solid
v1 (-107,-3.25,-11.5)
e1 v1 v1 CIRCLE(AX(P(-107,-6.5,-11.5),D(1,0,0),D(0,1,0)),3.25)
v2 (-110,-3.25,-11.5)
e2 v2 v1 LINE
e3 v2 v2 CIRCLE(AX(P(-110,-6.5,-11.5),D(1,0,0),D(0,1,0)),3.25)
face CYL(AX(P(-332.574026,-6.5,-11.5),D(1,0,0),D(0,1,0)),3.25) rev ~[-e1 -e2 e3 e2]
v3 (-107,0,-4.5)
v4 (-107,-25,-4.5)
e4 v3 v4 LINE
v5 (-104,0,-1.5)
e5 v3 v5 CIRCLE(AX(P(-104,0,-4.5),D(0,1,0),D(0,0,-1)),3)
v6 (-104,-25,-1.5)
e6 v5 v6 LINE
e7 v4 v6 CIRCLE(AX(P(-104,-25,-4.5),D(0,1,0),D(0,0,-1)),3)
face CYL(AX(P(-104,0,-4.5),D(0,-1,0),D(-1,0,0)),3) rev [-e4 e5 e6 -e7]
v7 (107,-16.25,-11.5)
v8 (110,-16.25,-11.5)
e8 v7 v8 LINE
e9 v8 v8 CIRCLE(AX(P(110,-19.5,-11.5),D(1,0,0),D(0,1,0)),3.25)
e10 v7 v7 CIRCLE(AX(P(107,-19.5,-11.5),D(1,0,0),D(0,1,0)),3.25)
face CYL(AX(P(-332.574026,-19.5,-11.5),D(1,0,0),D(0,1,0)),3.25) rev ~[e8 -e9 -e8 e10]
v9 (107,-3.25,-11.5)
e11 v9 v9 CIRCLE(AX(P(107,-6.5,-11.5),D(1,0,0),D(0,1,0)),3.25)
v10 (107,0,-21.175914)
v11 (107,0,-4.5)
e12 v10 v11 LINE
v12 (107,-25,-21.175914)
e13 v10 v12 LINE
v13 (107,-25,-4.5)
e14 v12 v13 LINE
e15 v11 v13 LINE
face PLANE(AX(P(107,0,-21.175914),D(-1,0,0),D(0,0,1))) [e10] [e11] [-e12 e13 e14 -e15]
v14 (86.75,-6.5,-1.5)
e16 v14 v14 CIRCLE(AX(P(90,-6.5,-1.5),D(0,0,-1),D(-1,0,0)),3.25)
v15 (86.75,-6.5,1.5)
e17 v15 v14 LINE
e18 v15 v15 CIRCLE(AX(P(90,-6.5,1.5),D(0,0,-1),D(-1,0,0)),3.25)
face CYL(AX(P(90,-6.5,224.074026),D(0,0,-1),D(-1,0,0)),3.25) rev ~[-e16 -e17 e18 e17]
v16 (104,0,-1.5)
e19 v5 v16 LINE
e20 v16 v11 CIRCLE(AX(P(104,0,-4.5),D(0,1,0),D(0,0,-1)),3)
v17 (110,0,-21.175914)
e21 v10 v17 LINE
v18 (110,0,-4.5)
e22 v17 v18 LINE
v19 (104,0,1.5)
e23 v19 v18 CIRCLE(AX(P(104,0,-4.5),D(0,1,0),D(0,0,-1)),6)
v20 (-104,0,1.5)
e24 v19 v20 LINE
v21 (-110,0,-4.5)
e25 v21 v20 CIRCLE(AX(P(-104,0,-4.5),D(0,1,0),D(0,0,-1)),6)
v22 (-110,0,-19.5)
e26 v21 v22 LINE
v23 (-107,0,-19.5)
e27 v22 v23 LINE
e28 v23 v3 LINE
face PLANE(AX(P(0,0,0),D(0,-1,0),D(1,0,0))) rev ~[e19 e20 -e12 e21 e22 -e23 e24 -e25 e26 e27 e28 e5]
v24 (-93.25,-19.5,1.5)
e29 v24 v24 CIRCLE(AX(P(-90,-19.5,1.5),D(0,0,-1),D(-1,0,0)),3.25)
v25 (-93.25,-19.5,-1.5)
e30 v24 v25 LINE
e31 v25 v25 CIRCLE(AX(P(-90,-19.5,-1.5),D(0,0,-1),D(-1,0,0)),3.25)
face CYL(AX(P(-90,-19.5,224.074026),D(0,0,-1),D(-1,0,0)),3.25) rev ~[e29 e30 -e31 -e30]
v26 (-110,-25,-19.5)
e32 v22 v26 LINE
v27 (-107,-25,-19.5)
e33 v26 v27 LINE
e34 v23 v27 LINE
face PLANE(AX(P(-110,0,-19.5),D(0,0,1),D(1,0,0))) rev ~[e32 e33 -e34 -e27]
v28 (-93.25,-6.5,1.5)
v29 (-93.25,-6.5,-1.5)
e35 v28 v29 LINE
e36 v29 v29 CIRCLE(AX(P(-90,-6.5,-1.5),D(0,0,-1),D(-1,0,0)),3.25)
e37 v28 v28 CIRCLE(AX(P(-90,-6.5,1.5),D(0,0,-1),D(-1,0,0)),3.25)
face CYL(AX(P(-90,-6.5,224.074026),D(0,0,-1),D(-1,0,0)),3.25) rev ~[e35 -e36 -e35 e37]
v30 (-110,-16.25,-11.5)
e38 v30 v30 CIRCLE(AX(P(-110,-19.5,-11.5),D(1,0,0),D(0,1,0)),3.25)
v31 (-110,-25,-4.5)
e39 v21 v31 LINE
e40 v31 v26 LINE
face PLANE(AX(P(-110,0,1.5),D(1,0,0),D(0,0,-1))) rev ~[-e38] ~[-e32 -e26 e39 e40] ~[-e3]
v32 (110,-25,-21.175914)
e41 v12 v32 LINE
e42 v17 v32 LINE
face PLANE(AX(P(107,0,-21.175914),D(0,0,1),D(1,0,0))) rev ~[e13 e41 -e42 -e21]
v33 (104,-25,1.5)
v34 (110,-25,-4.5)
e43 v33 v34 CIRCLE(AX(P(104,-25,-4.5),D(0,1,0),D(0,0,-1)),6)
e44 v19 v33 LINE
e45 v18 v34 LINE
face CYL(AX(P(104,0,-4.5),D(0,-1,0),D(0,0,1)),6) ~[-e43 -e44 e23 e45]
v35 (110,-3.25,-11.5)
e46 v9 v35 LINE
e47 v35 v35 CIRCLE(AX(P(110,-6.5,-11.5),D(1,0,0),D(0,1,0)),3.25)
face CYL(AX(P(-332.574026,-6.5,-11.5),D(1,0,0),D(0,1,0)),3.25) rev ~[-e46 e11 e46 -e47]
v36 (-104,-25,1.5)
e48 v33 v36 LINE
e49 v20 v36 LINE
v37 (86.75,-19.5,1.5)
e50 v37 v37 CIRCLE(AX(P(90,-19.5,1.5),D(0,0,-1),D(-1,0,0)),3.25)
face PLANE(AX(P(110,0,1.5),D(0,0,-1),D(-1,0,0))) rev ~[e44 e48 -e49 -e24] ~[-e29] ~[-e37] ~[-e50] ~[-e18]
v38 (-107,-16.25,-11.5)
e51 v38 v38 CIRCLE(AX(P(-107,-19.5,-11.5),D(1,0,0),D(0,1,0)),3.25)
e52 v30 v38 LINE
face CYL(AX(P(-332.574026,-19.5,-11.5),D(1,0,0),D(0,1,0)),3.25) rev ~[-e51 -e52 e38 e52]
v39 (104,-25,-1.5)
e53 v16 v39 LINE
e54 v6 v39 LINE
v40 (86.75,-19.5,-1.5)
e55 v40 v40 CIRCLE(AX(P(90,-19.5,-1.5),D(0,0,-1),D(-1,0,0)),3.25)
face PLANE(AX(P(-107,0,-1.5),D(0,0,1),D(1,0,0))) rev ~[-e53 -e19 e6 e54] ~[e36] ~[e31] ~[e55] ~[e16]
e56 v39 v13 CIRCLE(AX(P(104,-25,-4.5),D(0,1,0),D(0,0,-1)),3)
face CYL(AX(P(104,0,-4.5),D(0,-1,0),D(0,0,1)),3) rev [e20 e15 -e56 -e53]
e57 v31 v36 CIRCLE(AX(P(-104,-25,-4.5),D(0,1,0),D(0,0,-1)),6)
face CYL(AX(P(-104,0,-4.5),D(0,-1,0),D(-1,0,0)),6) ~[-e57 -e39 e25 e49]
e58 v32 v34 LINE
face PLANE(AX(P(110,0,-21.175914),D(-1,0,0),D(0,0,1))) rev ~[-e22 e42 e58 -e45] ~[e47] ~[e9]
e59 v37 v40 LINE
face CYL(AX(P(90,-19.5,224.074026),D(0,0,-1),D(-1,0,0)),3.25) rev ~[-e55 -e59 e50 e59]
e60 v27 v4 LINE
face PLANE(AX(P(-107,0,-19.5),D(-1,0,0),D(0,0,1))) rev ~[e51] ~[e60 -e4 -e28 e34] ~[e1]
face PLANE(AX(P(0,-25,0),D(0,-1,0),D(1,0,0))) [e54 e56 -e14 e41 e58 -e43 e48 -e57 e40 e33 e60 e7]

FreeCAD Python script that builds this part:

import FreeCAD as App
import Part
import Sketcher
from FreeCAD import Vector
Q = App.Units.Quantity


def edges_at(feature, points):
    """Names of the edges that pass closest to the given points."""
    edges = feature.Shape.Edges
    near = lambda p: min(range(len(edges)), key=lambda i: edges[i].distToShape(Part.Vertex(*p))[0])
    return sorted({f"Edge{near(p) + 1}" for p in points})

doc = App.newDocument("Part")
params = doc.addObject("Spreadsheet::Sheet", "Params")
for row, (alias, value) in enumerate([
    ("sketch1_width", "220 mm"),
    ("sketch1_width2", "3 mm"),
    ("sketch1_height", "21 mm"),
    ("sketch1_height2", "18 mm"),
    ("pad1_length", "25 mm"),
    ("sketch2_diameter", "6.5 mm"),
    ("hole_diameter", "6.5 mm"),
    ("sketch3_diameter", "6.5 mm"),
    ("hole2_diameter", "6.5 mm"),
    ("fillet_radius", "3 mm"),
    ("fillet2_radius", "6 mm"),
], start=1):
    params.set(f"A{row}", alias)
    params.set(f"B{row}", "=" + value)
    params.setAlias(f"B{row}", alias)

body = doc.addObject("PartDesign::Body", "Body")

# Sketch on XZ plane
sketch1 = body.newObject("Sketcher::SketchObject", "Sketch")
sketch1.AttachmentSupport = (doc.getObject("XZ_Plane"), [""])
sketch1.MapMode = "FlatFace"
sketch1.addGeometry([
    Part.LineSegment(Vector(110, 1.5, 0), Vector(-110, 1.5, 0)),  # 0
    Part.LineSegment(Vector(-110, 1.5, 0), Vector(-110, -19.5, 0)),  # 1
    Part.LineSegment(Vector(-110, -19.5, 0), Vector(-107, -19.5, 0)),  # 2
    Part.LineSegment(Vector(-107, -19.5, 0), Vector(-107, -1.5, 0)),  # 3
    Part.LineSegment(Vector(-107, -1.5, 0), Vector(107, -1.5, 0)),  # 4
    Part.LineSegment(Vector(107, -1.5, 0), Vector(107, -21.2, 0)),  # 5
    Part.LineSegment(Vector(107, -21.2, 0), Vector(110, -21.2, 0)),  # 6
    Part.LineSegment(Vector(110, -21.2, 0), Vector(110, 1.5, 0)),  # 7
], False)
sketch1.addConstraint([
    Sketcher.Constraint("Coincident", 0, 2, 1, 1),
    Sketcher.Constraint("Coincident", 1, 2, 2, 1),
    Sketcher.Constraint("Coincident", 2, 2, 3, 1),
    Sketcher.Constraint("Coincident", 3, 2, 4, 1),
    Sketcher.Constraint("Coincident", 4, 2, 5, 1),
    Sketcher.Constraint("Coincident", 5, 2, 6, 1),
    Sketcher.Constraint("Coincident", 6, 2, 7, 1),
    Sketcher.Constraint("Coincident", 7, 2, 0, 1),
    Sketcher.Constraint("Horizontal", 0),
    Sketcher.Constraint("Vertical", 1),
    Sketcher.Constraint("Horizontal", 2),
    Sketcher.Constraint("Vertical", 3),
    Sketcher.Constraint("Horizontal", 4),
    Sketcher.Constraint("Vertical", 5),
    Sketcher.Constraint("Horizontal", 6),
    Sketcher.Constraint("Vertical", 7),
    Sketcher.Constraint("Equal", 2, 6),
    Sketcher.Constraint("DistanceX", 0, 2, 0, 1, Q("220 mm")),
    Sketcher.Constraint("DistanceX", 2, 1, 2, 2, Q("3 mm")),
    Sketcher.Constraint("DistanceY", 1, 2, 1, 1, Q("21 mm")),
    Sketcher.Constraint("DistanceY", 3, 1, 3, 2, Q("18 mm")),
    Sketcher.Constraint("DistanceX", 0, 2, -1, 1, Q("110 mm")),
    Sketcher.Constraint("DistanceY", -1, 1, 0, 2, Q("1.5 mm")),
    Sketcher.Constraint("DistanceY", 5, 2, 5, 1, Q("19.675914 mm")),
])
sketch1.setExpression("Constraints[17]", "Params.sketch1_width")
sketch1.setExpression("Constraints[18]", "Params.sketch1_width2")
sketch1.setExpression("Constraints[19]", "Params.sketch1_height")
sketch1.setExpression("Constraints[20]", "Params.sketch1_height2")
pad1 = body.newObject("PartDesign::Pad", "Pad")
pad1.Profile = sketch1
pad1.setExpression("Length", "Params.pad1_length")

# Sketch on XY plane
sketch2 = body.newObject("Sketcher::SketchObject", "Sketch001")
sketch2.AttachmentSupport = (doc.getObject("XY_Plane"), [""])
sketch2.MapMode = "FlatFace"
sketch2.AttachmentOffset = App.Placement(Vector(0, 0, 1.5), App.Rotation())
sketch2.addGeometry([
    Part.Circle(Vector(-90, -19.5, 0), Vector(0, 0, 1), 3.2),
    Part.Circle(Vector(-90, -6.5, 0), Vector(0, 0, 1), 3.2),
    Part.Circle(Vector(90, -6.5, 0), Vector(0, 0, 1), 3.2),
    Part.Circle(Vector(90, -19.5, 0), Vector(0, 0, 1), 3.2),
], False)
sketch2.addConstraint([
    Sketcher.Constraint("Equal", 0, 1),
    Sketcher.Constraint("Equal", 1, 2),
    Sketcher.Constraint("Equal", 2, 3),
    Sketcher.Constraint("Symmetric", 1, 3, 2, 3, -2),
    Sketcher.Constraint("Symmetric", 0, 3, 3, 3, -2),
    Sketcher.Constraint("Vertical", 0, 3, 1, 3),
    Sketcher.Constraint("Diameter", 0, Q("6.5 mm")),
    Sketcher.Constraint("DistanceX", 0, 3, -1, 1, Q("90 mm")),
    Sketcher.Constraint("DistanceY", 0, 3, 1, 3, Q("13 mm")),
    Sketcher.Constraint("DistanceY", 0, 3, -1, 1, Q("19.5 mm")),
])
sketch2.setExpression("Constraints[6]", "Params.sketch2_diameter")
doc.recompute()
hole = body.newObject("PartDesign::Hole", "Hole")
hole.Profile = sketch2
hole.ThreadType = "None"
hole.setExpression("Diameter", "Params.hole_diameter")
hole.DepthType = "ThroughAll"

# Sketch on YZ plane
sketch3 = body.newObject("Sketcher::SketchObject", "Sketch002")
sketch3.AttachmentSupport = (doc.getObject("YZ_Plane"), [""])
sketch3.MapMode = "FlatFace"
sketch3.AttachmentOffset = App.Placement(Vector(0, 0, -110), App.Rotation())
sketch3.addGeometry([
    Part.Circle(Vector(-19.5, -11.5, 0), Vector(0, 0, 1), 3.2),
    Part.Circle(Vector(-6.5, -11.5, 0), Vector(0, 0, 1), 3.2),
], False)
sketch3.addConstraint([
    Sketcher.Constraint("Equal", 0, 1),
    Sketcher.Constraint("Horizontal", 0, 3, 1, 3),
    Sketcher.Constraint("Diameter", 0, Q("6.5 mm")),
    Sketcher.Constraint("DistanceX", 0, 3, 1, 3, Q("13 mm")),
    Sketcher.Constraint("DistanceX", 0, 3, -1, 1, Q("19.5 mm")),
    Sketcher.Constraint("DistanceY", 0, 3, -1, 1, Q("11.5 mm")),
])
sketch3.setExpression("Constraints[2]", "Params.sketch3_diameter")
doc.recompute()
hole2 = body.newObject("PartDesign::Hole", "Hole001")
hole2.Profile = sketch3
hole2.ThreadType = "None"
hole2.setExpression("Diameter", "Params.hole2_diameter")
hole2.DepthType = "ThroughAll"
hole2.Reversed = True
doc.recompute()

fillet = body.newObject("PartDesign::Fillet", "Fillet")
fillet.Base = (hole2, edges_at(hole2, [(-107, -12.5, -1.5), (107, -12.5, -1.5)]))
fillet.setExpression("Radius", "Params.fillet_radius")
doc.recompute()

fillet2 = body.newObject("PartDesign::Fillet", "Fillet001")
fillet2.Base = (fillet, edges_at(fillet, [(-110, -12.5, 1.5), (110, -12.5, 1.5)]))
fillet2.setExpression("Radius", "Params.fillet2_radius")

doc.recompute()
